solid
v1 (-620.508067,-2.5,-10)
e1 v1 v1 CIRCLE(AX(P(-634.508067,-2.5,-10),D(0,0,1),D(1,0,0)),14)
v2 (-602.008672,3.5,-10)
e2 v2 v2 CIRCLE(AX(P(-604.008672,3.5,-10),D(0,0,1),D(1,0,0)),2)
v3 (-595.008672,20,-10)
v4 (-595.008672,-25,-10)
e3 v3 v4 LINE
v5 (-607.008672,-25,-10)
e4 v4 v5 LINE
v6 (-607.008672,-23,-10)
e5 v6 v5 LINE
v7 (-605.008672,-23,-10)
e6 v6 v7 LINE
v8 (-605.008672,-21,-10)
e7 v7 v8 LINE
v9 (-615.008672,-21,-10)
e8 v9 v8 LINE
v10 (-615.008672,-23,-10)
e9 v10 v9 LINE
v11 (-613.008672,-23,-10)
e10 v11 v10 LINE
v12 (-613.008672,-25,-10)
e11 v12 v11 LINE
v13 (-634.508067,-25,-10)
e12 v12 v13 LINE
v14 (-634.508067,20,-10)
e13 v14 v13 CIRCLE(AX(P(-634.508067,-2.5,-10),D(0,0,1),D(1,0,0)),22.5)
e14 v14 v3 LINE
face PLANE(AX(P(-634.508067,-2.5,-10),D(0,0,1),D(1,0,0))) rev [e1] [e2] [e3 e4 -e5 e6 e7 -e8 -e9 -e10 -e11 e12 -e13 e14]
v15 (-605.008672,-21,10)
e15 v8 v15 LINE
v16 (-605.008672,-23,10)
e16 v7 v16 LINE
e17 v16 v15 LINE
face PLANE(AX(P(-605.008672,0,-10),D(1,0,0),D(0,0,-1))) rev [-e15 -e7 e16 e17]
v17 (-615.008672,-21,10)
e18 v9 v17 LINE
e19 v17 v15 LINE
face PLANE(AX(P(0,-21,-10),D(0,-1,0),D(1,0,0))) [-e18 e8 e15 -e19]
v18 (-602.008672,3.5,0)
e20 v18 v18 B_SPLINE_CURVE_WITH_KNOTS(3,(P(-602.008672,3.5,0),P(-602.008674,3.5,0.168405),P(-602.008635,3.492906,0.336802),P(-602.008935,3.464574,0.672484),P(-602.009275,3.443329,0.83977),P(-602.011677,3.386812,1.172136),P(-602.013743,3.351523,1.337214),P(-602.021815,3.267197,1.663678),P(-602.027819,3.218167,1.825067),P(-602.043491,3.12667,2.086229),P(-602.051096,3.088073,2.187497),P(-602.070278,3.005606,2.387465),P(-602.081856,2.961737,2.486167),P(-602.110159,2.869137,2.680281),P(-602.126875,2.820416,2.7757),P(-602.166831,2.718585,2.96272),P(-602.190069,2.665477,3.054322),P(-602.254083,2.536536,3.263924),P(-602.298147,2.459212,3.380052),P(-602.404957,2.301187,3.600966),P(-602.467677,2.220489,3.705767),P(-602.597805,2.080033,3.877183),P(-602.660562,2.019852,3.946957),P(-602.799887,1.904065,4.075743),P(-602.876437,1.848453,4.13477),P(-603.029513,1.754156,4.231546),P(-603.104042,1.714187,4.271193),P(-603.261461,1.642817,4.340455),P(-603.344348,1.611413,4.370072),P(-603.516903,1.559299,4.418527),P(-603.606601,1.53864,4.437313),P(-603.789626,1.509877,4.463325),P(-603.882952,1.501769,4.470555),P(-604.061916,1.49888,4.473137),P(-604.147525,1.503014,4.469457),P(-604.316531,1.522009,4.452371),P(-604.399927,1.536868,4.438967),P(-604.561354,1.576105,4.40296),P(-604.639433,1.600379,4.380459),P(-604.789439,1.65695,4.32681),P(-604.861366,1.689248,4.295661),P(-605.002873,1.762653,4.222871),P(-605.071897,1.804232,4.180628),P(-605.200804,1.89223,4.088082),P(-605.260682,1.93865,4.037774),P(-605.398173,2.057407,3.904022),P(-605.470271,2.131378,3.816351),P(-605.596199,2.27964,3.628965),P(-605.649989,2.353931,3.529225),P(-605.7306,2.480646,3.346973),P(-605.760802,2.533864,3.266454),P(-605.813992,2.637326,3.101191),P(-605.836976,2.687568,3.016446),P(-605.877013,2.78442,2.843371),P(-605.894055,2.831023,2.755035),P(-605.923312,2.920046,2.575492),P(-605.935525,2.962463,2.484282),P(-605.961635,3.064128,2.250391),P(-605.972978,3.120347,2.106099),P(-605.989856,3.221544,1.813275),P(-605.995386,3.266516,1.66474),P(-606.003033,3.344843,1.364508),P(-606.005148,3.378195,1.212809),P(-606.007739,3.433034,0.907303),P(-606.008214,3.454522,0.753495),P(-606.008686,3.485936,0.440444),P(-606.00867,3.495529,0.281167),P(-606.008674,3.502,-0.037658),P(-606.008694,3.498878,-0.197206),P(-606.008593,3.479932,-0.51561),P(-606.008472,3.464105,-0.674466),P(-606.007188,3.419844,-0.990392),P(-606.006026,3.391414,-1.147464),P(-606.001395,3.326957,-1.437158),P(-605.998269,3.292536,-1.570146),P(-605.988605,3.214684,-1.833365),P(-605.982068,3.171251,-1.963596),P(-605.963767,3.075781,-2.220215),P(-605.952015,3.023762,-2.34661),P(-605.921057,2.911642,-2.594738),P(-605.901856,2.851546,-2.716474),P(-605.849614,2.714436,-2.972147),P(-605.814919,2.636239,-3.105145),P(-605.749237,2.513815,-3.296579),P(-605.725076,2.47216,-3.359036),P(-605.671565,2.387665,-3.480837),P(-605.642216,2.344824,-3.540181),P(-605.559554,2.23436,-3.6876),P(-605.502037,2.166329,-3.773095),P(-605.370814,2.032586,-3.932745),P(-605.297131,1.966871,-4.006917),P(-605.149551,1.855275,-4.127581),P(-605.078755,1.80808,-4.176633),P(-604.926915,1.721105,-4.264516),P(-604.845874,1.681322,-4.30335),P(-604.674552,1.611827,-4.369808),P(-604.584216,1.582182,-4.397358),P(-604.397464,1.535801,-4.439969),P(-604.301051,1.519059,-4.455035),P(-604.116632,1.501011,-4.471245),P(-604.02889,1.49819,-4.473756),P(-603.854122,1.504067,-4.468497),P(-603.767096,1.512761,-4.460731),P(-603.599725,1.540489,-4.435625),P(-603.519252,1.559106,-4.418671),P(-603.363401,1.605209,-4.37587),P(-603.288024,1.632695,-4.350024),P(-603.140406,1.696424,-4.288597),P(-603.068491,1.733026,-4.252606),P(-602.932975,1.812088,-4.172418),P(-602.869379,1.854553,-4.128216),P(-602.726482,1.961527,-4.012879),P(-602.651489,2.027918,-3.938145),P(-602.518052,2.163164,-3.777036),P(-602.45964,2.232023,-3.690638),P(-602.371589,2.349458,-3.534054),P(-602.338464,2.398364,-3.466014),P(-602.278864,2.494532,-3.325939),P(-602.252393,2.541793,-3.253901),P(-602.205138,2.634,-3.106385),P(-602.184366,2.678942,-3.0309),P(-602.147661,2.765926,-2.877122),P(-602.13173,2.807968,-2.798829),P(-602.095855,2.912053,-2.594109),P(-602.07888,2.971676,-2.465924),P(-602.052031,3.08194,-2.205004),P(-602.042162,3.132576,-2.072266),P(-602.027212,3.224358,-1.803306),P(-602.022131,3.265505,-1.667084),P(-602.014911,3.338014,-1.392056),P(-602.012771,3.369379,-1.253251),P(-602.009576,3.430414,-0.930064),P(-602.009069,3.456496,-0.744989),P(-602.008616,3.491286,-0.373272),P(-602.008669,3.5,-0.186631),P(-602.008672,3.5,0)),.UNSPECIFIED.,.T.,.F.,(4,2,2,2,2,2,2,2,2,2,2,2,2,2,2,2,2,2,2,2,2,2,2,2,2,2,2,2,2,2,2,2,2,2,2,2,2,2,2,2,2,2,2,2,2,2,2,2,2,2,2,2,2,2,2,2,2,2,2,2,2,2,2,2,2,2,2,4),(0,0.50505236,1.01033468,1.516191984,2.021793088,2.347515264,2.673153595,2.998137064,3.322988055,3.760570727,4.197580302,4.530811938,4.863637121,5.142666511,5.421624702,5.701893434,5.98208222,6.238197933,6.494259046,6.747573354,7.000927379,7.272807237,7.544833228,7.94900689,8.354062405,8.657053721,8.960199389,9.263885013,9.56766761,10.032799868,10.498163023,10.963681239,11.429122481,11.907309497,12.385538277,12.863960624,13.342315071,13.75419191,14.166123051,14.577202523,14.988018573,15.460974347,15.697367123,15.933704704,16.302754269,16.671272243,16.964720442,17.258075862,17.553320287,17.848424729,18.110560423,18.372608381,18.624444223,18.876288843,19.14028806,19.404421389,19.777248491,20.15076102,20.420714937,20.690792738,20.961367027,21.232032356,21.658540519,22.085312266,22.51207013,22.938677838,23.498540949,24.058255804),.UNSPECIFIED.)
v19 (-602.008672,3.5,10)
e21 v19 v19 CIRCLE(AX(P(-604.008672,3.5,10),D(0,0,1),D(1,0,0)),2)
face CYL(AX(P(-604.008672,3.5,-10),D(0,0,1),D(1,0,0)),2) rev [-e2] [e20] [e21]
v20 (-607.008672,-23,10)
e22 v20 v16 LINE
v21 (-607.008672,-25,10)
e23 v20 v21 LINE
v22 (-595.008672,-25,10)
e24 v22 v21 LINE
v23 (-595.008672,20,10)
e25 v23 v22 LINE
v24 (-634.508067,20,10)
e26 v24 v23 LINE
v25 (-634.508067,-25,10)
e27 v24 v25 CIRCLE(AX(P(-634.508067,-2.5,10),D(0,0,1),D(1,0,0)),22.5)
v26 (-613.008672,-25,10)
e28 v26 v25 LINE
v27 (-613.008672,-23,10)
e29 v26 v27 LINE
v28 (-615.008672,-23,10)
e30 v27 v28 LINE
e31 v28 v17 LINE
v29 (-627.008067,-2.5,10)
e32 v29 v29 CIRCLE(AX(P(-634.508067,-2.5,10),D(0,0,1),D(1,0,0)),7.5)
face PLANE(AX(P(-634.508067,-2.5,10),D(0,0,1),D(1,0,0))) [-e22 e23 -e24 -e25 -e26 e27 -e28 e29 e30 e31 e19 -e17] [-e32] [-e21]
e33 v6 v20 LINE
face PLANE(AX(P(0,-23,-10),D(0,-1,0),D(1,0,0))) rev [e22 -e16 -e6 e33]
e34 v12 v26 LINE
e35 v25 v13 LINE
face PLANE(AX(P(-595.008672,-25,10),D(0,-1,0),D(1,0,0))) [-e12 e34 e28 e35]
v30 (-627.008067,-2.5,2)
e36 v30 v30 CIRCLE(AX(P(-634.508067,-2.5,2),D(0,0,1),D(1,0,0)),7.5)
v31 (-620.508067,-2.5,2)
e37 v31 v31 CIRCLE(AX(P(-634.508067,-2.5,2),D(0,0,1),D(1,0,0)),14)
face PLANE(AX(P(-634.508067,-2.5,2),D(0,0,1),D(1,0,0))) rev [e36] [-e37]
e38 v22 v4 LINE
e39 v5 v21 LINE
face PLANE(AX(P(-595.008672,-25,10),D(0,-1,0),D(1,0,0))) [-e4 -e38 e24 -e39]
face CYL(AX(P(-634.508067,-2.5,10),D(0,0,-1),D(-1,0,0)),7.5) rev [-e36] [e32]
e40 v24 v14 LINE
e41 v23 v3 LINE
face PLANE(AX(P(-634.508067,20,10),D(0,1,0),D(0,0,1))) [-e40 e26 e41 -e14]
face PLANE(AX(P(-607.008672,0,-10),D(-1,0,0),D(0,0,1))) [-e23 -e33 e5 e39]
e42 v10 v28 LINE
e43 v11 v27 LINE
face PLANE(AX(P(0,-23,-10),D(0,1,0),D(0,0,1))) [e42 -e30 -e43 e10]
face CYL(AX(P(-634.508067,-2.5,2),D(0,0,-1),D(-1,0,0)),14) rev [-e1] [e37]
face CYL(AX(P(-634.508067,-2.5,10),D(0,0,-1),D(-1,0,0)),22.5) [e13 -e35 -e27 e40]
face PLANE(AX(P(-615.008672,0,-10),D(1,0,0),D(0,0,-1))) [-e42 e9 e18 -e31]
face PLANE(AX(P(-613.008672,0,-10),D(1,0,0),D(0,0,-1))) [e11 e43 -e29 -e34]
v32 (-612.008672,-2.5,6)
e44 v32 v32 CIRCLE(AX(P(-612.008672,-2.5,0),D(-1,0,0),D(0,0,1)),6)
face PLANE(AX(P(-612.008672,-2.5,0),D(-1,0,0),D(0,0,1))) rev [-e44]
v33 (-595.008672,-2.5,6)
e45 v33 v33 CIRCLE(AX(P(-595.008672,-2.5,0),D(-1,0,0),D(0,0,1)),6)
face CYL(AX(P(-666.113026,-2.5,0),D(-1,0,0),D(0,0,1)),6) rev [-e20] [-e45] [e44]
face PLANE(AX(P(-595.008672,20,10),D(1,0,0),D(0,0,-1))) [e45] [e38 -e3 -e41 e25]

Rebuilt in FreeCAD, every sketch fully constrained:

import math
import FreeCAD as App
import Part
import Sketcher

V = App.Vector

doc = App.newDocument("Part")
body = doc.addObject("PartDesign::Body", "Body")

sketch1 = body.newObject("Sketcher::SketchObject", "Sketch")
sketch1.AttachmentSupport = (doc.getObject("XY_Plane"), [""])
sketch1.MapMode = "FlatFace"
sketch1.addGeometry([
    Part.LineSegment(V(-595, 20, 0), V(-635, 20, 0)),
    Part.ArcOfCircle(Part.Circle(V(-635, -2, 0), V(0, 0, 1), 22), math.radians(90), math.radians(270)),
    Part.LineSegment(V(-635, -25, 0), V(-595, -25, 0)),
    Part.LineSegment(V(-595, -25, 0), V(-595, 20, 0)),
    Part.Circle(V(-635, -2, 0), V(0, 0, 1), 8),
], False)
sketch1.addConstraint([
    Sketcher.Constraint("Tangent", 0, 2, 1, 1),
    Sketcher.Constraint("Tangent", 1, 2, 2, 1),
    Sketcher.Constraint("Coincident", 2, 2, 3, 1),
    Sketcher.Constraint("Coincident", 3, 2, 0, 1),
    Sketcher.Constraint("Horizontal", 0),
    Sketcher.Constraint("Horizontal", 2),
    Sketcher.Constraint("Vertical", 3),
    Sketcher.Constraint("Coincident", 4, 3, 1, 3),
    Sketcher.Constraint("Diameter", 4, 15.0),
    Sketcher.Constraint("Radius", 1, 22.5),
    Sketcher.Constraint("DistanceY", -1, 1, 0, 2, 20.0),
    Sketcher.Constraint("DistanceX", 0, 2, 0, 1, 39.499395),
    Sketcher.Constraint("DistanceX", 2, 2, -1, 1, 595.008672),
])
pad1 = body.newObject("PartDesign::Pad", "Pad")
pad1.Profile = sketch1
pad1.Length = 20
pad1.Midplane = True

sketch2 = body.newObject("Sketcher::SketchObject", "Sketch001")
sketch2.AttachmentSupport = (doc.getObject("XY_Plane"), [""])
sketch2.MapMode = "FlatFace"
sketch2.addGeometry([
    Part.LineSegment(V(-612, 4, 0), V(-612, -2, 0)),
    Part.LineSegment(V(-612, -2, 0), V(-595, -2, 0)),
    Part.LineSegment(V(-595, -2, 0), V(-595, 4, 0)),
    Part.LineSegment(V(-595, 4, 0), V(-612, 4, 0)),
], False)
sketch2.addGeometry(Part.LineSegment(V(-612, -2, 0), V(-595, -2, 0)), True)
sketch2.addConstraint([
    Sketcher.Constraint("Coincident", 0, 2, 1, 1),
    Sketcher.Constraint("Coincident", 1, 2, 2, 1),
    Sketcher.Constraint("Coincident", 2, 2, 3, 1),
    Sketcher.Constraint("Coincident", 3, 2, 0, 1),
    Sketcher.Constraint("Vertical", 0),
    Sketcher.Constraint("Horizontal", 1),
    Sketcher.Constraint("Vertical", 2),
    Sketcher.Constraint("Horizontal", 3),
    Sketcher.Constraint("Horizontal", 4),
    Sketcher.Constraint("Coincident", 4, 1, 0, 2),
    Sketcher.Constraint("Vertical", 2, 2, 4, 2),
    Sketcher.Constraint("DistanceX", 1, 1, 1, 2, 17.0),
    Sketcher.Constraint("DistanceY", 0, 2, 0, 1, 6.0),
    Sketcher.Constraint("DistanceY", 0, 2, -1, 1, 2.5),
    Sketcher.Constraint("DistanceX", 0, 2, -1, 1, 612.008672),
])
groove = body.newObject("PartDesign::Groove", "Groove")
groove.Profile = sketch2
groove.ReferenceAxis = (sketch2, ["Axis0"])
groove.Angle = 360

sketch3 = body.newObject("Sketcher::SketchObject", "Sketch002")
sketch3.AttachmentSupport = (doc.getObject("XY_Plane"), [""])
sketch3.MapMode = "FlatFace"
sketch3.addGeometry(Part.Circle(V(-635, -2, 0), V(0, 0, 1), 14), False)
sketch3.addConstraint([
    Sketcher.Constraint("Diameter", 0, 28.0),
    Sketcher.Constraint("DistanceY", 0, 3, -1, 1, 2.5),
    Sketcher.Constraint("DistanceX", 0, 3, -1, 1, 634.508067),
])
pocket1 = body.newObject("PartDesign::Pocket", "Pocket")
pocket1.Profile = sketch3
pocket1.Type = "TwoLengths"
pocket1.Length = 2
pocket1.Length2 = 10
pocket1.Reversed = True

sketch4 = body.newObject("Sketcher::SketchObject", "Sketch003")
sketch4.AttachmentSupport = (doc.getObject("XY_Plane"), [""])
sketch4.MapMode = "FlatFace"
sketch4.addGeometry(Part.Circle(V(-604, 3.5, 0), V(0, 0, 1), 2), False)
sketch4.addConstraint([
    Sketcher.Constraint("Diameter", 0, 4.0),
    Sketcher.Constraint("DistanceY", -1, 1, 0, 3, 3.5),
    Sketcher.Constraint("DistanceX", 0, 3, -1, 1, 604.008672),
])
pocket2 = body.newObject("PartDesign::Pocket", "Pocket001")
pocket2.Profile = sketch4
pocket2.Type = "ThroughAll"
pocket2.Midplane = True

sketch5 = body.newObject("Sketcher::SketchObject", "Sketch004")
sketch5.AttachmentSupport = (doc.getObject("XY_Plane"), [""])
sketch5.MapMode = "FlatFace"
sketch5.addGeometry([
    Part.LineSegment(V(-613, -23, 0), V(-613, -25, 0)),
    Part.LineSegment(V(-613, -25, 0), V(-607, -25, 0)),
    Part.LineSegment(V(-607, -25, 0), V(-607, -23, 0)),
    Part.LineSegment(V(-607, -23, 0), V(-605, -23, 0)),
    Part.LineSegment(V(-605, -23, 0), V(-605, -21, 0)),
    Part.LineSegment(V(-605, -21, 0), V(-615, -21, 0)),
    Part.LineSegment(V(-615, -21, 0), V(-615, -23, 0)),
    Part.LineSegment(V(-615, -23, 0), V(-613, -23, 0)),
], False)
sketch5.addConstraint([
    Sketcher.Constraint("Coincident", 0, 2, 1, 1),
    Sketcher.Constraint("Coincident", 1, 2, 2, 1),
    Sketcher.Constraint("Coincident", 2, 2, 3, 1),
    Sketcher.Constraint("Coincident", 3, 2, 4, 1),
    Sketcher.Constraint("Coincident", 4, 2, 5, 1),
    Sketcher.Constraint("Coincident", 5, 2, 6, 1),
    Sketcher.Constraint("Coincident", 6, 2, 7, 1),
    Sketcher.Constraint("Coincident", 7, 2, 0, 1),
    Sketcher.Constraint("Vertical", 0),
    Sketcher.Constraint("Horizontal", 1),
    Sketcher.Constraint("Vertical", 2),
    Sketcher.Constraint("Horizontal", 3),
    Sketcher.Constraint("Vertical", 4),
    Sketcher.Constraint("Horizontal", 5),
    Sketcher.Constraint("Vertical", 6),
    Sketcher.Constraint("Horizontal", 7),
    Sketcher.Constraint("Horizontal", 3, 2, 6, 2),
    Sketcher.Constraint("Equal", 3, 7),
    Sketcher.Constraint("Equal", 7, 0),
    Sketcher.Constraint("Equal", 2, 4),
    Sketcher.Constraint("DistanceX", 1, 1, 1, 2, 6.0),
    Sketcher.Constraint("DistanceX", 3, 1, 3, 2, 2.0),
    Sketcher.Constraint("DistanceY", 0, 2, -1, 1, 25.0),
    Sketcher.Constraint("DistanceX", 0, 2, -1, 1, 613.008672),
])
pocket3 = body.newObject("PartDesign::Pocket", "Pocket002")
pocket3.Profile = sketch5
pocket3.Type = "ThroughAll"
pocket3.Midplane = True

doc.recompute()
